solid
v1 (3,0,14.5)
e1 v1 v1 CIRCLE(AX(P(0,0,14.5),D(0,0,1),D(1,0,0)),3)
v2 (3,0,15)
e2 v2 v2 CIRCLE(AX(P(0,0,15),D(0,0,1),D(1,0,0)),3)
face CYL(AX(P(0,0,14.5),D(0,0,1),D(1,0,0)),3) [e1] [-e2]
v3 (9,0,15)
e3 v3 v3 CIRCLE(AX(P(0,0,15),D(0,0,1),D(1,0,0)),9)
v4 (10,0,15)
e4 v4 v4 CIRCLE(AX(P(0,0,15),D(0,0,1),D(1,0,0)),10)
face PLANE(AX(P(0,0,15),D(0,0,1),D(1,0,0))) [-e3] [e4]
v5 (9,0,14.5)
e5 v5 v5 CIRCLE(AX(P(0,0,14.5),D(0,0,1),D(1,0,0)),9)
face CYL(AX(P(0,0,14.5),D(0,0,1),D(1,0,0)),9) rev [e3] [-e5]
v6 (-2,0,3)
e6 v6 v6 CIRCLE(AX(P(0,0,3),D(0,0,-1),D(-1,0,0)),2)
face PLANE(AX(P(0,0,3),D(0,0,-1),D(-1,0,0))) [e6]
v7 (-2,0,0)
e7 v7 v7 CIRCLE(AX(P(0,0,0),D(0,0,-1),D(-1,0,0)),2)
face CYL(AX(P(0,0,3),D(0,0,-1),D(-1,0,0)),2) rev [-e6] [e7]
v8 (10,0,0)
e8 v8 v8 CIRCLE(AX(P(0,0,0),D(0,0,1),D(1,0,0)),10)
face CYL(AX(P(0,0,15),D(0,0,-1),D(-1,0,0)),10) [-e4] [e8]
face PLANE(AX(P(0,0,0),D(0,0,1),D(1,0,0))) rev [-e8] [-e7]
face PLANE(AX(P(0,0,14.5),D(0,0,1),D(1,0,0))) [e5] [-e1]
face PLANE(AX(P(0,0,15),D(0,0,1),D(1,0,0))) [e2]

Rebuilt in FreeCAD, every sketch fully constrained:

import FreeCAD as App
import Part
import Sketcher
from FreeCAD import Vector

doc = App.newDocument("Part")
body = doc.addObject("PartDesign::Body", "Body")

sketch1 = doc.addObject("Sketcher::SketchObject", "Sketch")
body.addObject(sketch1)
sketch1.AttachmentSupport = (doc.XY_Plane, [""])
sketch1.MapMode = "FlatFace"
sketch1.addGeometry(Part.Circle(Vector(0, 0, 0), Vector(0, 0, 1), 10), False)
sketch1.addConstraint(Sketcher.Constraint("Coincident", 0, 3, -1, 1))
sketch1.addConstraint(Sketcher.Constraint("Diameter", 0, 20.0))
pad1 = doc.addObject("PartDesign::Pad", "Pad")
body.addObject(pad1)
pad1.Profile = sketch1
pad1.Length = 15

sketch2 = doc.addObject("Sketcher::SketchObject", "Sketch001")
body.addObject(sketch2)
sketch2.AttachmentSupport = (doc.XY_Plane, [""])
sketch2.MapMode = "FlatFace"
sketch2.AttachmentOffset = App.Placement(Vector(0, 0, 15), App.Rotation())
sketch2.addGeometry(Part.Circle(Vector(0, 0, 0), Vector(0, 0, 1), 9), False)
sketch2.addGeometry(Part.Circle(Vector(0, 0, 0), Vector(0, 0, 1), 3), False)
sketch2.addConstraint(Sketcher.Constraint("Coincident", 0, 3, -1, 1))
sketch2.addConstraint(Sketcher.Constraint("Coincident", 1, 3, -1, 1))
sketch2.addConstraint(Sketcher.Constraint("Diameter", 0, 18.0))
sketch2.addConstraint(Sketcher.Constraint("Diameter", 1, 6.0))
pocket1 = doc.addObject("PartDesign::Pocket", "Pocket")
body.addObject(pocket1)
pocket1.Profile = sketch2
pocket1.Length = 0.5

sketch3 = doc.addObject("Sketcher::SketchObject", "Sketch002")
body.addObject(sketch3)
sketch3.AttachmentSupport = (doc.XY_Plane, [""])
sketch3.MapMode = "FlatFace"
sketch3.addGeometry(Part.Circle(Vector(0, 0, 0), Vector(0, 0, 1), 2), False)
sketch3.addConstraint(Sketcher.Constraint("Coincident", 0, 3, -1, 1))
sketch3.addConstraint(Sketcher.Constraint("Diameter", 0, 4.0))
pocket2 = doc.addObject("PartDesign::Pocket", "Pocket001")
body.addObject(pocket2)
pocket2.Profile = sketch3
pocket2.Length = 3
pocket2.Reversed = True

doc.recompute()
